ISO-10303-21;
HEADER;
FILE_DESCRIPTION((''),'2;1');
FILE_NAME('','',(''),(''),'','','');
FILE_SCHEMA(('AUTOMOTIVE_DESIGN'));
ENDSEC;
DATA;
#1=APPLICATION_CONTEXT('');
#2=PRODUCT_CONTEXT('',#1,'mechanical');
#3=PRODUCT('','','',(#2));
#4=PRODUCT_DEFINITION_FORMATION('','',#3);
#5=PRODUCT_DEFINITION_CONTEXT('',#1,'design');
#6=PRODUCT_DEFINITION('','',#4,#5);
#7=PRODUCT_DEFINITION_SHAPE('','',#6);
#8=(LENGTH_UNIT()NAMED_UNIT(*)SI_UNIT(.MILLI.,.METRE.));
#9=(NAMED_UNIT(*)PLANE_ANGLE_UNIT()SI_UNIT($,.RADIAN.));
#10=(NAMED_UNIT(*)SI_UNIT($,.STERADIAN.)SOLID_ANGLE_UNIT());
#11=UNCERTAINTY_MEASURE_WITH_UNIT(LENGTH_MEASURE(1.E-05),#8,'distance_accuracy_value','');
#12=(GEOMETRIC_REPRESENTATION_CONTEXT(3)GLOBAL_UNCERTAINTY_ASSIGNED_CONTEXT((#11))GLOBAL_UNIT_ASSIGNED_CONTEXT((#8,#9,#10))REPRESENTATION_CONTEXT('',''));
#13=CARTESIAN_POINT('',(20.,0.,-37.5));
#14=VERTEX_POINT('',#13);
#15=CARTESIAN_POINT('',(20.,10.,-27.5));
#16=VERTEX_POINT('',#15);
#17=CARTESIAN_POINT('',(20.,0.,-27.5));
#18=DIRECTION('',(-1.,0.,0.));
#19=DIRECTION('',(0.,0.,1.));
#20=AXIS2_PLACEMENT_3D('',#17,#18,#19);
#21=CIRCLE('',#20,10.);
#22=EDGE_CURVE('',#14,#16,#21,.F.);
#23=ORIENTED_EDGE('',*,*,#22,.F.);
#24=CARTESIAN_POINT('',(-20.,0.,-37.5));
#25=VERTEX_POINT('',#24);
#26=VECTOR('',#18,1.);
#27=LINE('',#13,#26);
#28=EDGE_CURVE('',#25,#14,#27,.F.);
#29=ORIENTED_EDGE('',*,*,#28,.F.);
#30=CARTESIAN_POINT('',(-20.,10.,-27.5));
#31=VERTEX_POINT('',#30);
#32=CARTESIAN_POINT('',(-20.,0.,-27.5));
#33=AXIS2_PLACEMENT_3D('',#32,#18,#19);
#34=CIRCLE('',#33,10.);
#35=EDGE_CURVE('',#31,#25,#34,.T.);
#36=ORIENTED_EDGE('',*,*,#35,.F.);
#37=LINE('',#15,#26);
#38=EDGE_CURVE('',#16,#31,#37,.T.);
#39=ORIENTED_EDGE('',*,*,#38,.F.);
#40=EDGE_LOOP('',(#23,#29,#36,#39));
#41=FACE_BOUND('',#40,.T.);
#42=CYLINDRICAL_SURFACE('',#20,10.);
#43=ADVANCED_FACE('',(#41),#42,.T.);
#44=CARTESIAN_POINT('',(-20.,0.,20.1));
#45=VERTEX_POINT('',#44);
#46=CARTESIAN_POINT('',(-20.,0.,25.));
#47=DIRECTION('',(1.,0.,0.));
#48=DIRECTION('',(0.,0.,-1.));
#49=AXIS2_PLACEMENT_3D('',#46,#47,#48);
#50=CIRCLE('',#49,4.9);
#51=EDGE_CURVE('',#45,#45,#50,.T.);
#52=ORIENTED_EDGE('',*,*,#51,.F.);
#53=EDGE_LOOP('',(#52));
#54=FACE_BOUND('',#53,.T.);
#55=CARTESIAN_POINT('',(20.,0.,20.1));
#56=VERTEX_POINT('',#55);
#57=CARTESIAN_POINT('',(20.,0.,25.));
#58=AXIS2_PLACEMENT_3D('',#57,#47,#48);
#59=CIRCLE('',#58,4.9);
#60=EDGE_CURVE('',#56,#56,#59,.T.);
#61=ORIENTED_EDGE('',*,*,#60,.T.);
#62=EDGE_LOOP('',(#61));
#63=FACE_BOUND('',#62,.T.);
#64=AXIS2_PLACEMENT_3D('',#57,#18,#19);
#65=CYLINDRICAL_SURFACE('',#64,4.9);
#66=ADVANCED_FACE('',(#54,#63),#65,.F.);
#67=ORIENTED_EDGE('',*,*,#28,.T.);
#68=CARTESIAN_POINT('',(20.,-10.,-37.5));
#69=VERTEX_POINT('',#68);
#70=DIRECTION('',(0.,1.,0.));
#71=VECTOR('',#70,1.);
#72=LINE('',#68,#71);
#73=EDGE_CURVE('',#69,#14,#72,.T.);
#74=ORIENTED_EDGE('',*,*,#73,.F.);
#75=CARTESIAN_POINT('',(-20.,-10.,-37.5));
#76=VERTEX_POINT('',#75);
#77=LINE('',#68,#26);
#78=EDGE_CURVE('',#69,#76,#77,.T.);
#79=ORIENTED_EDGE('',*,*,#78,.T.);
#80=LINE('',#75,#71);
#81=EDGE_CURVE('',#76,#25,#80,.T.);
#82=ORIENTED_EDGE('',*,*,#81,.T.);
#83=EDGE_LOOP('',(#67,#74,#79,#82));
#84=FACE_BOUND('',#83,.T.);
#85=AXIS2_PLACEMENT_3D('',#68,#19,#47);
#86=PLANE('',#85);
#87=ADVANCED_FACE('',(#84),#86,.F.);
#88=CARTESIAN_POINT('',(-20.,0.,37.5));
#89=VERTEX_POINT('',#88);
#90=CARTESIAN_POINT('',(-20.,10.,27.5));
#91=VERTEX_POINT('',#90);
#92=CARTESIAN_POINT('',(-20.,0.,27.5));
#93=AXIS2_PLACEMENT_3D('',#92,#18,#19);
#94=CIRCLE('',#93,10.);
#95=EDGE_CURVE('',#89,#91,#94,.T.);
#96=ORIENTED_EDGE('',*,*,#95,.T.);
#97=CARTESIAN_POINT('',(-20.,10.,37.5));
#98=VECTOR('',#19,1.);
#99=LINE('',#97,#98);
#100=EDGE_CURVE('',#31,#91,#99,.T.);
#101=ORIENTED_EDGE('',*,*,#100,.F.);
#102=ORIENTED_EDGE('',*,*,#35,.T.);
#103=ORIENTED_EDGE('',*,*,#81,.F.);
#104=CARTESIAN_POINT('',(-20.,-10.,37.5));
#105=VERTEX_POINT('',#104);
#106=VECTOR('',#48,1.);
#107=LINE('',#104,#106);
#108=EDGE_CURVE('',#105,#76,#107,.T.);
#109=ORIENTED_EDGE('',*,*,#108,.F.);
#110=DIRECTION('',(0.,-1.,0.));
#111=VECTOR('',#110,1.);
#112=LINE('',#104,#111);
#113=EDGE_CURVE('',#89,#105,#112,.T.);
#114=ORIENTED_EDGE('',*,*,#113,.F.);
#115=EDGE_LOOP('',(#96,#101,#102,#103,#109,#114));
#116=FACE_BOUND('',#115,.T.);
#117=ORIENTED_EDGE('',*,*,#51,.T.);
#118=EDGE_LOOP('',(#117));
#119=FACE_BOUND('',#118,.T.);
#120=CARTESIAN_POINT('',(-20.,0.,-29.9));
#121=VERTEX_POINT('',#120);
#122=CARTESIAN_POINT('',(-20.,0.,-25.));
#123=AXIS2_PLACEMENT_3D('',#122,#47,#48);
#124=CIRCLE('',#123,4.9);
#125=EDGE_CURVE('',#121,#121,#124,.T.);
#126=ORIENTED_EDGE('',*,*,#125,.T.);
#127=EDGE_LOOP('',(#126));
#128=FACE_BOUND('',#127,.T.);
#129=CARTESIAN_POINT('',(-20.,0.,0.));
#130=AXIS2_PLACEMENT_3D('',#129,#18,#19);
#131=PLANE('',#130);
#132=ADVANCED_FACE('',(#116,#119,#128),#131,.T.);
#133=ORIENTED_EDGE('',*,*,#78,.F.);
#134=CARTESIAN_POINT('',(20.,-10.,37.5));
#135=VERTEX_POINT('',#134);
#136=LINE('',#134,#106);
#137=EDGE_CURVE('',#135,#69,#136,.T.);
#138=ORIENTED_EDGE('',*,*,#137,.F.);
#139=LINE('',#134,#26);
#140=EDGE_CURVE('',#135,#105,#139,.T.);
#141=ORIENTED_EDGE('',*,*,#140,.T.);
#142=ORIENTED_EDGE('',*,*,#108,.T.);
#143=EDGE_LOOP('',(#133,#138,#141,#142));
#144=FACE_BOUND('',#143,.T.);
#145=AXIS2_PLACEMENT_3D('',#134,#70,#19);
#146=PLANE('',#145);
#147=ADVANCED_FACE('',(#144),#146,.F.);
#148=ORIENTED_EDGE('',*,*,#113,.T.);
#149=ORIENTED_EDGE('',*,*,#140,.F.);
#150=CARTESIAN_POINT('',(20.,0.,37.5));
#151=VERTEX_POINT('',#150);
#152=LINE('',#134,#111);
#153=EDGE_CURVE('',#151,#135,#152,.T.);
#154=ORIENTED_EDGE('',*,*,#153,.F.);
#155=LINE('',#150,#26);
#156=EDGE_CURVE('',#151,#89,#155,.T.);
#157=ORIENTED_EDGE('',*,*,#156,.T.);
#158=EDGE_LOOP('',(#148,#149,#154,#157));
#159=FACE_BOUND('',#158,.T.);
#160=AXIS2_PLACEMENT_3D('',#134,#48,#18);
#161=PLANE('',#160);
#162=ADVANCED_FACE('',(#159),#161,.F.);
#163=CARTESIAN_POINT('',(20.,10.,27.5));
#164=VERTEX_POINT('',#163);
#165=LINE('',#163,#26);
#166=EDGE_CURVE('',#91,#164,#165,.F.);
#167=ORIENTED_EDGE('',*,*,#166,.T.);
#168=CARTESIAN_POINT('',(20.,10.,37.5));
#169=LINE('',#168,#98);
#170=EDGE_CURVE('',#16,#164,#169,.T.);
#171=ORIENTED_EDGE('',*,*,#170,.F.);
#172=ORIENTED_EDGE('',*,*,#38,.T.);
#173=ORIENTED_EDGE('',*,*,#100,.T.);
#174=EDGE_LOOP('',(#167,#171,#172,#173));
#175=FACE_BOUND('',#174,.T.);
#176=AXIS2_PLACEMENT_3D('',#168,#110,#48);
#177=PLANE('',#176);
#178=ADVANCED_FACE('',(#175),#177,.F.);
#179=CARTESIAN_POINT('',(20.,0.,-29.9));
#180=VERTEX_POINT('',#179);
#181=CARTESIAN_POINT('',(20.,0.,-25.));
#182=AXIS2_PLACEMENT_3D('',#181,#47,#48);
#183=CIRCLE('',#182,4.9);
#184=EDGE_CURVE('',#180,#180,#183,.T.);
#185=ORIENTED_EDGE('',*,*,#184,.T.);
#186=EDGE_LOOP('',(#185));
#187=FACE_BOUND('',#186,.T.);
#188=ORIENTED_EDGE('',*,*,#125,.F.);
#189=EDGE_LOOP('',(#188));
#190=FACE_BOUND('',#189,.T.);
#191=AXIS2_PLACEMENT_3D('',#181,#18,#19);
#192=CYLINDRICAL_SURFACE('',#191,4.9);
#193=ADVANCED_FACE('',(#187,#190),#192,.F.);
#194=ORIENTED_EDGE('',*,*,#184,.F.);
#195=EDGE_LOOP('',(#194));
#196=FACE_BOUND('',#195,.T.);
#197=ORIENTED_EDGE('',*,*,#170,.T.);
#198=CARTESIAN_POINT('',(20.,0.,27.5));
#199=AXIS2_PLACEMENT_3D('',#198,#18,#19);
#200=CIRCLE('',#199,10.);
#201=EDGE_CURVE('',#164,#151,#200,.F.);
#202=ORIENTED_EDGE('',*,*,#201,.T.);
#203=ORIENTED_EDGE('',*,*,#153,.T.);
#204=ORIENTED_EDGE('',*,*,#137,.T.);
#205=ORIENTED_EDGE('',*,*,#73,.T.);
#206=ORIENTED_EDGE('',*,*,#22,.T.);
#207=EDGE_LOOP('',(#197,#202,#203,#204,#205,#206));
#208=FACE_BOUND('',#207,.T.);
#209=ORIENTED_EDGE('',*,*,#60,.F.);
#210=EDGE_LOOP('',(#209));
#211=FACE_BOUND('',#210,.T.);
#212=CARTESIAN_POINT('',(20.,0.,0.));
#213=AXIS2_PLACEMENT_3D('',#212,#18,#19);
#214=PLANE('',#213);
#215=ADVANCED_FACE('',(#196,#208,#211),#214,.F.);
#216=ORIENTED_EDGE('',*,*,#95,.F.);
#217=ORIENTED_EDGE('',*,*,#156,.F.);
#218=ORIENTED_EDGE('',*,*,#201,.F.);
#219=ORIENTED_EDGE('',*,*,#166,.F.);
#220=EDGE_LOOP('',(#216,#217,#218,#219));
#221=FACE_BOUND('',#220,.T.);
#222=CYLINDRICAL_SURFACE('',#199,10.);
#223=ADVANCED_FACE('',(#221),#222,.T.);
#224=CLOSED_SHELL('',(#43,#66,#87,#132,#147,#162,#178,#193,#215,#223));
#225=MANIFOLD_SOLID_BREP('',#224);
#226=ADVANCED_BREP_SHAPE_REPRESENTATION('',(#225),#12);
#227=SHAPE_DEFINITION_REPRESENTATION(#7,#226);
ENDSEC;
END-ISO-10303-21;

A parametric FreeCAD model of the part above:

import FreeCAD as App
import Part
import Sketcher
Q = App.Units.Quantity


def edges_at(feature, points):
    """Names of the edges that pass closest to the given points."""
    edges = feature.Shape.Edges
    near = lambda p: min(range(len(edges)), key=lambda i: edges[i].distToShape(Part.Vertex(*p))[0])
    return sorted({f"Edge{near(p) + 1}" for p in points})

doc = App.newDocument("Part")
body = doc.addObject("PartDesign::Body", "Body")

# Sketch on YZ plane
sketch1 = body.newObject("Sketcher::SketchObject", "Sketch")
sketch1.AttachmentSupport = (doc.getObject("YZ_Plane"), [""])
sketch1.MapMode = "FlatFace"
sketch1.addGeometry(Part.LineSegment(App.Vector(10, 37.5, 0), App.Vector(-10, 37.5, 0)), False)
sketch1.addGeometry(Part.LineSegment(App.Vector(-10, 37.5, 0), App.Vector(-10, -37.5, 0)), False)
sketch1.addGeometry(Part.LineSegment(App.Vector(-10, -37.5, 0), App.Vector(10, -37.5, 0)), False)
sketch1.addGeometry(Part.LineSegment(App.Vector(10, -37.5, 0), App.Vector(10, 37.5, 0)), False)
sketch1.addGeometry(Part.Circle(App.Vector(0, 25, 0), App.Vector(0, 0, 1), 4.9), False)
sketch1.addGeometry(Part.Circle(App.Vector(0, -25, 0), App.Vector(0, 0, 1), 4.9), False)
sketch1.addConstraint(Sketcher.Constraint("Coincident", 0, 2, 1, 1))
sketch1.addConstraint(Sketcher.Constraint("Coincident", 1, 2, 2, 1))
sketch1.addConstraint(Sketcher.Constraint("Coincident", 2, 2, 3, 1))
sketch1.addConstraint(Sketcher.Constraint("Coincident", 3, 2, 0, 1))
sketch1.addConstraint(Sketcher.Constraint("Horizontal", 0))
sketch1.addConstraint(Sketcher.Constraint("Vertical", 1))
sketch1.addConstraint(Sketcher.Constraint("Horizontal", 2))
sketch1.addConstraint(Sketcher.Constraint("Vertical", 3))
sketch1.addConstraint(Sketcher.Constraint("Equal", 4, 5))
sketch1.addConstraint(Sketcher.Constraint("Symmetric", 4, 3, 5, 3, -1, 1))
sketch1.addConstraint(Sketcher.Constraint("Symmetric", 0, 2, 2, 2, -1, 1))
sketch1.addConstraint(Sketcher.Constraint("PointOnObject", 4, 3, -2))
sketch1.addConstraint(Sketcher.Constraint("Diameter", 4, Q("9.8 mm")))
sketch1.addConstraint(Sketcher.Constraint("DistanceX", 0, 2, 0, 1, Q("20 mm")))
sketch1.addConstraint(Sketcher.Constraint("DistanceY", 1, 2, 1, 1, Q("75 mm")))
sketch1.addConstraint(Sketcher.Constraint("DistanceY", -1, 1, 4, 3, Q("25 mm")))
pad1 = body.newObject("PartDesign::Pad", "Pad")
pad1.Profile = sketch1
pad1.Length = 40
pad1.Midplane = True
doc.recompute()

fillet = body.newObject("PartDesign::Fillet", "Fillet")
fillet.Base = (pad1, edges_at(pad1, [(0, 10, 37.5), (0, 10, -37.5)]))
fillet.Radius = 10

doc.recompute()
